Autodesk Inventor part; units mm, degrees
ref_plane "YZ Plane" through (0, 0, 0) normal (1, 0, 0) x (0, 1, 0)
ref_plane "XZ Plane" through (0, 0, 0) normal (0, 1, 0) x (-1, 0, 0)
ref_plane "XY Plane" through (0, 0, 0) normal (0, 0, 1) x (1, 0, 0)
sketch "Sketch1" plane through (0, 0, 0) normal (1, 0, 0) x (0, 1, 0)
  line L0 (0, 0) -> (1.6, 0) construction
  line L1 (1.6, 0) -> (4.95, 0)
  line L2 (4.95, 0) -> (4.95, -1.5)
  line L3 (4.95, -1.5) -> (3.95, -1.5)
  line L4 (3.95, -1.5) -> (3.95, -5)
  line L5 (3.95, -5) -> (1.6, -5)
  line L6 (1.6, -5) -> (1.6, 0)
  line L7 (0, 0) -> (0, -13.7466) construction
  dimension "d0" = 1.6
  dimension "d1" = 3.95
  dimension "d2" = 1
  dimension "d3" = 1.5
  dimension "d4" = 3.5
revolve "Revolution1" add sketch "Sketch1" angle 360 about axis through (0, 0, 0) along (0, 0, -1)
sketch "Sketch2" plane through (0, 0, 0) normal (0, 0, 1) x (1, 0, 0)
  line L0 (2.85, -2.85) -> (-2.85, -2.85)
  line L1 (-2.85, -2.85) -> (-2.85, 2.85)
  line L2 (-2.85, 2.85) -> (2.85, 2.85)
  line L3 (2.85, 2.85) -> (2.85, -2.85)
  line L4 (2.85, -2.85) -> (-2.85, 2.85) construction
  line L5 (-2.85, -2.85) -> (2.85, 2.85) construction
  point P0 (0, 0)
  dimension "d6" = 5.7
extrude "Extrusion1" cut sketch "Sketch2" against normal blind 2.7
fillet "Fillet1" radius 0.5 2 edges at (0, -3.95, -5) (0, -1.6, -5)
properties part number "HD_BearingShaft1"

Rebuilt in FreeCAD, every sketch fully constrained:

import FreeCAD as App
import Part
import Sketcher
from FreeCAD import Vector


def edges_at(feature, points):
    """Names of the edges that pass closest to the given points."""
    edges = feature.Shape.Edges
    near = lambda p: min(range(len(edges)), key=lambda i: edges[i].distToShape(Part.Vertex(*p))[0])
    return sorted({f"Edge{near(p) + 1}" for p in points})

doc = App.newDocument("Part")
body = doc.addObject("PartDesign::Body", "Body")

# Sketch on YZ plane
sketch1 = body.newObject("Sketcher::SketchObject", "Sketch")
sketch1.AttachmentSupport = (doc.getObject("YZ_Plane"), [""])
sketch1.MapMode = "FlatFace"
sketch1.addGeometry([
    Part.LineSegment(Vector(5, 0, 0), Vector(1.6, 0, 0)),  # 0
    Part.LineSegment(Vector(1.6, 0, 0), Vector(1.6, -5, 0)),  # 1
    Part.LineSegment(Vector(1.6, -5, 0), Vector(4, -5, 0)),  # 2
    Part.LineSegment(Vector(4, -5, 0), Vector(4, -1.5, 0)),  # 3
    Part.LineSegment(Vector(4, -1.5, 0), Vector(5, -1.5, 0)),  # 4
    Part.LineSegment(Vector(5, -1.5, 0), Vector(5, 0, 0)),  # 5
], False)
sketch1.addConstraint([
    Sketcher.Constraint("Coincident", 0, 2, 1, 1),
    Sketcher.Constraint("Coincident", 1, 2, 2, 1),
    Sketcher.Constraint("Coincident", 2, 2, 3, 1),
    Sketcher.Constraint("Coincident", 3, 2, 4, 1),
    Sketcher.Constraint("Coincident", 4, 2, 5, 1),
    Sketcher.Constraint("Coincident", 5, 2, 0, 1),
    Sketcher.Constraint("Horizontal", 0),
    Sketcher.Constraint("Vertical", 1),
    Sketcher.Constraint("Horizontal", 2),
    Sketcher.Constraint("Vertical", 3),
    Sketcher.Constraint("Horizontal", 4),
    Sketcher.Constraint("Vertical", 5),
    Sketcher.Constraint("PointOnObject", 0, 2, -1),
    Sketcher.Constraint("DistanceX", 4, 1, 4, 2, 1.0),
    Sketcher.Constraint("DistanceY", 3, 1, 3, 2, 3.5),
    Sketcher.Constraint("DistanceY", 5, 1, 5, 2, 1.5),
    Sketcher.Constraint("DistanceX", -1, 1, 0, 2, 1.6),
    Sketcher.Constraint("DistanceX", -1, 1, 2, 2, 3.95),
])
revolution = body.newObject("PartDesign::Revolution", "Revolution")
revolution.Profile = sketch1
revolution.ReferenceAxis = (sketch1, ["V_Axis"])
revolution.Angle = 360

# Sketch on XY plane
sketch2 = body.newObject("Sketcher::SketchObject", "Sketch001")
sketch2.AttachmentSupport = (doc.getObject("XY_Plane"), [""])
sketch2.MapMode = "FlatFace"
sketch2.addGeometry([
    Part.LineSegment(Vector(-3, -3, 0), Vector(3, -3, 0)),
    Part.LineSegment(Vector(3, -3, 0), Vector(3, 3, 0)),
    Part.LineSegment(Vector(3, 3, 0), Vector(-3, 3, 0)),
    Part.LineSegment(Vector(-3, 3, 0), Vector(-3, -3, 0)),
], False)
sketch2.addConstraint([
    Sketcher.Constraint("Coincident", 0, 2, 1, 1),
    Sketcher.Constraint("Coincident", 1, 2, 2, 1),
    Sketcher.Constraint("Coincident", 2, 2, 3, 1),
    Sketcher.Constraint("Coincident", 3, 2, 0, 1),
    Sketcher.Constraint("Horizontal", 0),
    Sketcher.Constraint("Vertical", 1),
    Sketcher.Constraint("Horizontal", 2),
    Sketcher.Constraint("Vertical", 3),
    Sketcher.Constraint("Symmetric", 0, 2, 2, 2, -1, 1),
    Sketcher.Constraint("Equal", 2, 1),
    Sketcher.Constraint("DistanceX", 0, 1, 0, 2, 5.7),
])
pocket1 = body.newObject("PartDesign::Pocket", "Pocket")
pocket1.Profile = sketch2
pocket1.Length = 2.7
doc.recompute()

fillet = body.newObject("PartDesign::Fillet", "Fillet")
fillet.Base = (pocket1, edges_at(pocket1, [(0, -3.95, -5), (0, -1.6, -5)]))
fillet.Radius = 0.5

doc.recompute()
